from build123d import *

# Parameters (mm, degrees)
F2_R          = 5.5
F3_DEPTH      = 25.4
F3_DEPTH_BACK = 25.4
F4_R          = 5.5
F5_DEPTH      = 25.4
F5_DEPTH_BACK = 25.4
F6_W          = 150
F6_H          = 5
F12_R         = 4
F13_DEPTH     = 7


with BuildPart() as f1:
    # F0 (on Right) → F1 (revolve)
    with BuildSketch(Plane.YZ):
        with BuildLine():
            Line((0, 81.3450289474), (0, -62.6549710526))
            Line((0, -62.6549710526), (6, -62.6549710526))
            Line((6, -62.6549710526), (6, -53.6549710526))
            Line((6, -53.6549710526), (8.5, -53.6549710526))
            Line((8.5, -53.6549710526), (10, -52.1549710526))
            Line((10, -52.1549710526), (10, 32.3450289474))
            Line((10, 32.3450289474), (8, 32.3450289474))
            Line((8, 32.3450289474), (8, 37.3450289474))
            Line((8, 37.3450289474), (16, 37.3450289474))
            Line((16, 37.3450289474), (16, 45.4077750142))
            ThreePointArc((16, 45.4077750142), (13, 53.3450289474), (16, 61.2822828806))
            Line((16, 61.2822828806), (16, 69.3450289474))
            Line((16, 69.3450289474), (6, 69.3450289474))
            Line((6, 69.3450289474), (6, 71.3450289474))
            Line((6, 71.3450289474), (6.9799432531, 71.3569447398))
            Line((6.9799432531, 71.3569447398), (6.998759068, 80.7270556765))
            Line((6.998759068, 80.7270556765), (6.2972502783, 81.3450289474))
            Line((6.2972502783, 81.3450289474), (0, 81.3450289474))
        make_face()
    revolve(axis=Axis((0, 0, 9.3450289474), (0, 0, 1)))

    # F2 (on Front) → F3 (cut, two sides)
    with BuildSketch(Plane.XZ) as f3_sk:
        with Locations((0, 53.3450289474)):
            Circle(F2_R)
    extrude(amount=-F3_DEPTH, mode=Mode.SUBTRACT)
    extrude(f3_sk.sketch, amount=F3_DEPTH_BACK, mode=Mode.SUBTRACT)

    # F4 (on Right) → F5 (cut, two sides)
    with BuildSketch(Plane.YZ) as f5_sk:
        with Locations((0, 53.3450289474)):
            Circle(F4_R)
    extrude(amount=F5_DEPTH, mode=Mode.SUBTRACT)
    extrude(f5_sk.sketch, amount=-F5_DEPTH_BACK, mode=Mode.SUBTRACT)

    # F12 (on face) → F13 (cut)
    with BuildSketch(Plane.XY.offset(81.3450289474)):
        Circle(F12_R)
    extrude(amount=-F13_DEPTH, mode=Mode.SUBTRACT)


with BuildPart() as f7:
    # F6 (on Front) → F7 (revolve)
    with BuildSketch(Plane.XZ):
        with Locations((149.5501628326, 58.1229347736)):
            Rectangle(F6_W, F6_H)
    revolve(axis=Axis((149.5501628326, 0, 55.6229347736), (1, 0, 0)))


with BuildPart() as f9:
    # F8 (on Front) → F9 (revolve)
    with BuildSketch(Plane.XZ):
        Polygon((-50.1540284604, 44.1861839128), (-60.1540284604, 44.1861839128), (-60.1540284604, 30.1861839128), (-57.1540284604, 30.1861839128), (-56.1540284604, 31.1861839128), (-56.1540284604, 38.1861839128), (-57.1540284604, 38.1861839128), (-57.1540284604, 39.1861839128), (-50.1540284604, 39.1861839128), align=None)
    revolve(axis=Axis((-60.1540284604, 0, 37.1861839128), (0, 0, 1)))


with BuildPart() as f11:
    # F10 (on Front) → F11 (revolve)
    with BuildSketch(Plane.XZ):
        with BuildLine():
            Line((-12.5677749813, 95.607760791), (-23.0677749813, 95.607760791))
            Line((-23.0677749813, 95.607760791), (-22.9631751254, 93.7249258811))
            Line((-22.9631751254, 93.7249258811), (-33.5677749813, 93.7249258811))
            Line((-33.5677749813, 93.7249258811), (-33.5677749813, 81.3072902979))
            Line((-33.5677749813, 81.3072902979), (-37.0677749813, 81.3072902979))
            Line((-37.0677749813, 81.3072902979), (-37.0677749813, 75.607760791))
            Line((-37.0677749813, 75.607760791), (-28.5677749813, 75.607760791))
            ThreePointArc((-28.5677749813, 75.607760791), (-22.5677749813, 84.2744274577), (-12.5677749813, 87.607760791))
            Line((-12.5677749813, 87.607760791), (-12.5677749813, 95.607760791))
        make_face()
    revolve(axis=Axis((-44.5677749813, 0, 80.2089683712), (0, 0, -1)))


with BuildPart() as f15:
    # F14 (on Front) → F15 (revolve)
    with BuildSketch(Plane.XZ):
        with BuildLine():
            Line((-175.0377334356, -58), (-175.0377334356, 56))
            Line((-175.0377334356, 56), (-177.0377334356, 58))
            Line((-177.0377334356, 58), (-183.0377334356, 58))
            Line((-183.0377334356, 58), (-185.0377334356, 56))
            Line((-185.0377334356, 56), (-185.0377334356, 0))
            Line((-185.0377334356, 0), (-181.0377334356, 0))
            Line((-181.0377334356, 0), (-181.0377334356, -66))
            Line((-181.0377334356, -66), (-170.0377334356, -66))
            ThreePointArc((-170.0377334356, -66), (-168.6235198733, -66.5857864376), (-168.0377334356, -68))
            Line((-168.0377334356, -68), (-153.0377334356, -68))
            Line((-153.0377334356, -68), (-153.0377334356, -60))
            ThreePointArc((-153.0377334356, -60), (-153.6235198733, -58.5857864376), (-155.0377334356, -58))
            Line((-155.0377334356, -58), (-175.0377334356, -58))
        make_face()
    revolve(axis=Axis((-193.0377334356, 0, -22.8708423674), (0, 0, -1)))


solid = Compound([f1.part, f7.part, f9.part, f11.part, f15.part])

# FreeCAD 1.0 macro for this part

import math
import FreeCAD as App
import Part
import Sketcher

V = App.Vector
Q = App.Units.Quantity


def add_polygon(sketch, points):
    """Adds a closed chain of lines whose ends are joined by coincident constraints."""
    first, n = sketch.GeometryCount, len(points)
    for a, b in zip(points, points[1:] + points[:1]):
        sketch.addGeometry(Part.LineSegment(App.Vector(*a, 0), App.Vector(*b, 0)), False)
    for i in range(n):
        sketch.addConstraint(Sketcher.Constraint("Coincident", first + i, 2, first + (i + 1) % n, 1))

doc = App.newDocument("Part")
body = doc.addObject("PartDesign::Body", "Body")

# Sketch on YZ plane
sketch1 = body.newObject("Sketcher::SketchObject", "Sketch")
sketch1.AttachmentSupport = (doc.getObject("YZ_Plane"), [""])
sketch1.MapMode = "FlatFace"
sketch1.addGeometry([
    Part.LineSegment(V(0, 81.345029, 0), V(0, -62.654971, 0)),  # 0
    Part.LineSegment(V(0, -62.654971, 0), V(6, -62.654971, 0)),  # 1
    Part.LineSegment(V(6, -62.654971, 0), V(6, -53.654971, 0)),  # 2
    Part.LineSegment(V(6, -53.654971, 0), V(8.5, -53.654971, 0)),  # 3
    Part.LineSegment(V(8.5, -53.654971, 0), V(10, -52.154971, 0)),  # 4
    Part.LineSegment(V(10, -52.154971, 0), V(10, 32.345029, 0)),  # 5
    Part.LineSegment(V(10, 32.345029, 0), V(8, 32.345029, 0)),  # 6
    Part.LineSegment(V(8, 32.345029, 0), V(8, 37.345029, 0)),  # 7
    Part.LineSegment(V(8, 37.345029, 0), V(16, 37.345029, 0)),  # 8
    Part.LineSegment(V(16, 37.345029, 0), V(16, 45.407775, 0)),  # 9
    Part.ArcOfCircle(Part.Circle(V(25, 53.345029, 0), V(0, 0, 1), 12), math.radians(138.590378), math.radians(221.409622)),  # 10
    Part.LineSegment(V(16, 61.282283, 0), V(16, 69.345029, 0)),  # 11
    Part.LineSegment(V(16, 69.345029, 0), V(6, 69.345029, 0)),  # 12
    Part.LineSegment(V(6, 69.345029, 0), V(6, 71.345029, 0)),  # 13
    Part.LineSegment(V(6, 71.345029, 0), V(6.979943, 71.356945, 0)),  # 14
    Part.LineSegment(V(6.979943, 71.356945, 0), V(6.998759, 80.727056, 0)),  # 15
    Part.LineSegment(V(6.998759, 80.727056, 0), V(6.29725, 81.345029, 0)),  # 16
    Part.LineSegment(V(6.29725, 81.345029, 0), V(0, 81.345029, 0)),  # 17
], False)
sketch1.addConstraint([
    Sketcher.Constraint("Coincident", 0, 2, 1, 1),
    Sketcher.Constraint("Coincident", 1, 2, 2, 1),
    Sketcher.Constraint("Coincident", 2, 2, 3, 1),
    Sketcher.Constraint("Coincident", 3, 2, 4, 1),
    Sketcher.Constraint("Coincident", 4, 2, 5, 1),
    Sketcher.Constraint("Coincident", 5, 2, 6, 1),
    Sketcher.Constraint("Coincident", 6, 2, 7, 1),
    Sketcher.Constraint("Coincident", 7, 2, 8, 1),
    Sketcher.Constraint("Coincident", 8, 2, 9, 1),
    Sketcher.Constraint("Coincident", 9, 2, 10, 2),
    Sketcher.Constraint("Coincident", 10, 1, 11, 1),
    Sketcher.Constraint("Coincident", 11, 2, 12, 1),
    Sketcher.Constraint("Coincident", 12, 2, 13, 1),
    Sketcher.Constraint("Coincident", 13, 2, 14, 1),
    Sketcher.Constraint("Coincident", 14, 2, 15, 1),
    Sketcher.Constraint("Coincident", 15, 2, 16, 1),
    Sketcher.Constraint("Coincident", 16, 2, 17, 1),
    Sketcher.Constraint("Coincident", 17, 2, 0, 1),
    Sketcher.Constraint("Vertical", 0),
    Sketcher.Constraint("Horizontal", 1),
    Sketcher.Constraint("Vertical", 2),
    Sketcher.Constraint("Horizontal", 3),
    Sketcher.Constraint("Vertical", 5),
    Sketcher.Constraint("Horizontal", 6),
    Sketcher.Constraint("Vertical", 7),
    Sketcher.Constraint("Horizontal", 8),
    Sketcher.Constraint("Vertical", 9),
    Sketcher.Constraint("Vertical", 11),
    Sketcher.Constraint("Horizontal", 12),
    Sketcher.Constraint("Vertical", 13),
    Sketcher.Constraint("Horizontal", 17),
    Sketcher.Constraint("PointOnObject", 0, 2, -2),
    Sketcher.Constraint("Vertical", 9, 2, 10, 1),
    Sketcher.Constraint("Vertical", 2, 2, 12, 2),
    Sketcher.Constraint("Equal", 9, 11),
    Sketcher.Constraint("Equal", 6, 13),
    Sketcher.Constraint("Radius", 10, 12.0),
    Sketcher.Constraint("DistanceX", 1, 1, 1, 2, 6.0),
    Sketcher.Constraint("DistanceX", 6, 2, 6, 1, 2.0),
    Sketcher.Constraint("DistanceX", 8, 1, 8, 2, 8.0),
    Sketcher.Constraint("DistanceX", 12, 2, 12, 1, 10.0),
    Sketcher.Constraint("DistanceY", 0, 2, 0, 1, 144.0),
    Sketcher.Constraint("DistanceY", 2, 1, 2, 2, 9.0),
    Sketcher.Constraint("DistanceY", 7, 1, 7, 2, 5.0),
    Sketcher.Constraint("Angle", 4, Q("45 deg")),
    Sketcher.Constraint("DistanceX", 3, 1, 3, 2, 2.5),
    Sketcher.Constraint("DistanceY", 5, 1, 5, 2, 84.5),
    Sketcher.Constraint("DistanceX", -1, 1, 10, 3, 25.0),
    Sketcher.Constraint("DistanceY", 0, 2, 10, 3, 116.0),
    Sketcher.Constraint("DistanceX", 17, 2, 17, 1, 6.29725),
    Sketcher.Constraint("Distance", 15, 9.37013),
    Sketcher.Constraint("DistanceY", -1, 1, 10, 3, 53.345029),
    Sketcher.Constraint("DistanceX", -1, 1, 15, 2, 6.998759),
    Sketcher.Constraint("DistanceY", 10, 1, 14, 2, 10.074662),
    Sketcher.Constraint("Distance", 14, 0.980016),
])
revolution = body.newObject("PartDesign::Revolution", "Revolution")
revolution.Profile = sketch1
revolution.ReferenceAxis = (sketch1, ["V_Axis"])
revolution.Angle = 360

# Sketch on XZ plane
sketch2 = body.newObject("Sketcher::SketchObject", "Sketch001")
sketch2.AttachmentSupport = (doc.getObject("XZ_Plane"), [""])
sketch2.MapMode = "FlatFace"
sketch2.addGeometry(Part.Circle(V(0, 53.345029, 0), V(0, 0, 1), 5.5), False)
sketch2.addConstraint([
    Sketcher.Constraint("PointOnObject", 0, 3, -2),
    Sketcher.Constraint("Diameter", 0, 11.0),
    Sketcher.Constraint("DistanceY", -1, 1, 0, 3, 53.345029),
])
pocket1 = body.newObject("PartDesign::Pocket", "Pocket")
pocket1.Profile = sketch2
pocket1.Type = "ThroughAll"
pocket1.Midplane = True

# Sketch on YZ plane
sketch3 = body.newObject("Sketcher::SketchObject", "Sketch002")
sketch3.AttachmentSupport = (doc.getObject("YZ_Plane"), [""])
sketch3.MapMode = "FlatFace"
sketch3.addGeometry(Part.Circle(V(0, 53.345029, 0), V(0, 0, 1), 5.5), False)
sketch3.addConstraint([
    Sketcher.Constraint("PointOnObject", 0, 3, -2),
    Sketcher.Constraint("Diameter", 0, 11.0),
    Sketcher.Constraint("DistanceY", -1, 1, 0, 3, 53.345029),
])
pocket2 = body.newObject("PartDesign::Pocket", "Pocket001")
pocket2.Profile = sketch3
pocket2.Type = "ThroughAll"
pocket2.Midplane = True

# Sketch on XY plane
sketch4 = body.newObject("Sketcher::SketchObject", "Sketch003")
sketch4.AttachmentSupport = (doc.getObject("XY_Plane"), [""])
sketch4.MapMode = "FlatFace"
sketch4.AttachmentOffset = App.Placement(V(0, 0, 81.345029), App.Rotation())
sketch4.addGeometry(Part.Circle(V(0, 0, 0), V(0, 0, 1), 4), False)
sketch4.addConstraint([
    Sketcher.Constraint("Coincident", 0, 3, -1, 1),
    Sketcher.Constraint("Diameter", 0, 8.0),
])
pocket3 = body.newObject("PartDesign::Pocket", "Pocket002")
pocket3.Profile = sketch4
pocket3.Length = 7
body2 = doc.addObject("PartDesign::Body", "Body001")

# Sketch on XZ plane
sketch5 = body2.newObject("Sketcher::SketchObject", "Sketch004")
sketch5.AttachmentSupport = (doc.getObject("XZ_Plane001"), [""])
sketch5.MapMode = "FlatFace"
add_polygon(sketch5, [(74.550163, 60.622935), (74.550163, 55.622935), (224.550163, 55.622935), (224.550163, 60.622935)])  # lines 0-3
sketch5.addGeometry(Part.LineSegment(V(74.550163, 55.622935, 0), V(224.550163, 55.622935, 0)), True)  # axis
sketch5.addConstraint([
    Sketcher.Constraint("Vertical", 0),
    Sketcher.Constraint("Horizontal", 1),
    Sketcher.Constraint("Vertical", 2),
    Sketcher.Constraint("Horizontal", 3),
    Sketcher.Constraint("Horizontal", 4),
    Sketcher.Constraint("Coincident", 4, 1, 0, 2),
    Sketcher.Constraint("Vertical", 2, 2, 4, 2),
    Sketcher.Constraint("DistanceX", 1, 1, 1, 2, 150.0),
    Sketcher.Constraint("DistanceY", 0, 2, 0, 1, 5.0),
    Sketcher.Constraint("DistanceX", -1, 1, 0, 2, 74.550163),
    Sketcher.Constraint("DistanceY", -1, 1, 0, 2, 55.622935),
])
revolution2 = body2.newObject("PartDesign::Revolution", "Revolution001")
revolution2.Profile = sketch5
revolution2.ReferenceAxis = (sketch5, ["Axis0"])
revolution2.Angle = 360
body3 = doc.addObject("PartDesign::Body", "Body002")

# Sketch on XZ plane
sketch6 = body3.newObject("Sketcher::SketchObject", "Sketch005")
sketch6.AttachmentSupport = (doc.getObject("XZ_Plane002"), [""])
sketch6.MapMode = "FlatFace"
add_polygon(sketch6, [(-50.154028, 44.186184), (-60.154028, 44.186184), (-60.154028, 30.186184), (-57.154028, 30.186184), (-56.154028, 31.186184), (-56.154028, 38.186184), (-57.154028, 38.186184), (-57.154028, 39.186184), (-50.154028, 39.186184)])  # lines 0-8
sketch6.addGeometry(Part.LineSegment(V(-60.154028, 30.186184, 0), V(-60.154028, 44.186184, 0)), True)  # axis
sketch6.addConstraint([
    Sketcher.Constraint("Horizontal", 0),
    Sketcher.Constraint("Vertical", 1),
    Sketcher.Constraint("Horizontal", 2),
    Sketcher.Constraint("Vertical", 4),
    Sketcher.Constraint("Horizontal", 5),
    Sketcher.Constraint("Vertical", 6),
    Sketcher.Constraint("Horizontal", 7),
    Sketcher.Constraint("Vertical", 8),
    Sketcher.Constraint("Vertical", 9),
    Sketcher.Constraint("Coincident", 9, 1, 1, 2),
    Sketcher.Constraint("Horizontal", 8, 2, 9, 2),
    Sketcher.Constraint("Vertical", 2, 2, 5, 2),
    Sketcher.Constraint("Equal", 7, 4),
    Sketcher.Constraint("Equal", 5, 6),
    Sketcher.Constraint("DistanceX", 0, 2, 0, 1, 10.0),
    Sketcher.Constraint("DistanceX", 2, 1, 2, 2, 3.0),
    Sketcher.Constraint("DistanceX", 5, 2, 5, 1, 1.0),
    Sketcher.Constraint("DistanceY", 1, 2, 1, 1, 14.0),
    Sketcher.Constraint("DistanceY", 8, 1, 8, 2, 5.0),
    Sketcher.Constraint("DistanceX", 0, 2, -1, 1, 60.154028),
    Sketcher.Constraint("DistanceY", -1, 1, 0, 2, 44.186184),
])
revolution3 = body3.newObject("PartDesign::Revolution", "Revolution002")
revolution3.Profile = sketch6
revolution3.ReferenceAxis = (sketch6, ["Axis0"])
revolution3.Angle = 360
body4 = doc.addObject("PartDesign::Body", "Body003")

# Sketch on XZ plane
sketch7 = body4.newObject("Sketcher::SketchObject", "Sketch006")
sketch7.AttachmentSupport = (doc.getObject("XZ_Plane003"), [""])
sketch7.MapMode = "FlatFace"
sketch7.addGeometry([
    Part.LineSegment(V(-12.567775, 95.607761, 0), V(-23.067775, 95.607761, 0)),  # 0
    Part.LineSegment(V(-23.067775, 95.607761, 0), V(-22.963175, 93.724926, 0)),  # 1
    Part.LineSegment(V(-22.963175, 93.724926, 0), V(-33.567775, 93.724926, 0)),  # 2
    Part.LineSegment(V(-33.567775, 93.724926, 0), V(-33.567775, 81.30729, 0)),  # 3
    Part.LineSegment(V(-33.567775, 81.30729, 0), V(-37.067775, 81.30729, 0)),  # 4
    Part.LineSegment(V(-37.067775, 81.30729, 0), V(-37.067775, 75.607761, 0)),  # 5
    Part.LineSegment(V(-37.067775, 75.607761, 0), V(-28.567775, 75.607761, 0)),  # 6
    Part.ArcOfCircle(Part.Circle(V(-12.567775, 70.941094, 0), V(0, 0, 1), 16.666667), math.radians(90), math.radians(163.739795)),  # 7
    Part.LineSegment(V(-12.567775, 87.607761, 0), V(-12.567775, 95.607761, 0)),  # 8
], False)
sketch7.addGeometry(Part.LineSegment(V(-44.567775, 95.607761, 0), V(-44.567775, 70.941094, 0)), True)  # axis
sketch7.addConstraint([
    Sketcher.Constraint("Coincident", 0, 2, 1, 1),
    Sketcher.Constraint("Coincident", 1, 2, 2, 1),
    Sketcher.Constraint("Coincident", 2, 2, 3, 1),
    Sketcher.Constraint("Coincident", 3, 2, 4, 1),
    Sketcher.Constraint("Coincident", 4, 2, 5, 1),
    Sketcher.Constraint("Coincident", 5, 2, 6, 1),
    Sketcher.Constraint("Coincident", 6, 2, 7, 2),
    Sketcher.Constraint("Coincident", 7, 1, 8, 1),
    Sketcher.Constraint("Coincident", 8, 2, 0, 1),
    Sketcher.Constraint("Horizontal", 0),
    Sketcher.Constraint("Horizontal", 2),
    Sketcher.Constraint("Vertical", 3),
    Sketcher.Constraint("Horizontal", 4),
    Sketcher.Constraint("Vertical", 5),
    Sketcher.Constraint("Horizontal", 6),
    Sketcher.Constraint("Vertical", 8),
    Sketcher.Constraint("Vertical", 9),
    Sketcher.Constraint("Horizontal", 8, 2, 9, 1),
    Sketcher.Constraint("Horizontal", 7, 3, 9, 2),
    Sketcher.Constraint("DistanceY", 8, 1, 8, 2, 8.0),
    Sketcher.Constraint("DistanceX", 0, 2, 0, 1, 10.5),
    Sketcher.Constraint("DistanceX", 4, 2, 4, 1, 3.5),
    Sketcher.Constraint("DistanceX", 6, 1, 6, 2, 8.5),
    Sketcher.Constraint("DistanceX", 2, 2, 7, 3, 21.0),
    Sketcher.Constraint("DistanceX", 4, 2, 0, 2, 14.0),
    Sketcher.Constraint("DistanceY", 5, 2, 0, 2, 20.0),
    Sketcher.Constraint("DistanceX", 9, 1, 2, 2, 11.0),
    Sketcher.Constraint("DistanceX", 2, 2, 2, 1, 10.6046),
    Sketcher.Constraint("DistanceY", 5, 2, 5, 1, 5.69953),
    Sketcher.Constraint("Distance", 1, 1.885738),
    Sketcher.Constraint("DistanceY", -1, 1, 0, 2, 95.607761),
    Sketcher.Constraint("DistanceX", 7, 3, -1, 1, 12.567775),
])
revolution4 = body4.newObject("PartDesign::Revolution", "Revolution003")
revolution4.Profile = sketch7
revolution4.ReferenceAxis = (sketch7, ["Axis0"])
revolution4.Angle = 360
body5 = doc.addObject("PartDesign::Body", "Body004")

# Sketch on XZ plane
sketch8 = body5.newObject("Sketcher::SketchObject", "Sketch007")
sketch8.AttachmentSupport = (doc.getObject("XZ_Plane004"), [""])
sketch8.MapMode = "FlatFace"
sketch8.addGeometry([
    Part.LineSegment(V(-175.037733, -58, 0), V(-175.037733, 56, 0)),  # 0
    Part.LineSegment(V(-175.037733, 56, 0), V(-177.037733, 58, 0)),  # 1
    Part.LineSegment(V(-177.037733, 58, 0), V(-183.037733, 58, 0)),  # 2
    Part.LineSegment(V(-183.037733, 58, 0), V(-185.037733, 56, 0)),  # 3
    Part.LineSegment(V(-185.037733, 56, 0), V(-185.037733, 0, 0)),  # 4
    Part.LineSegment(V(-185.037733, 0, 0), V(-181.037733, 0, 0)),  # 5
    Part.LineSegment(V(-181.037733, 0, 0), V(-181.037733, -66, 0)),  # 6
    Part.LineSegment(V(-181.037733, -66, 0), V(-170.037733, -66, 0)),  # 7
    Part.ArcOfCircle(Part.Circle(V(-170.037733, -68, 0), V(0, 0, 1), 2), math.radians(0), math.radians(90)),  # 8
    Part.LineSegment(V(-168.037733, -68, 0), V(-153.037733, -68, 0)),  # 9
    Part.LineSegment(V(-153.037733, -68, 0), V(-153.037733, -60, 0)),  # 10
    Part.ArcOfCircle(Part.Circle(V(-155.037733, -60, 0), V(0, 0, 1), 2), math.radians(0), math.radians(90)),  # 11
    Part.LineSegment(V(-155.037733, -58, 0), V(-175.037733, -58, 0)),  # 12
], False)
sketch8.addGeometry(Part.LineSegment(V(-193.037733, 58, 0), V(-193.037733, -68, 0)), True)  # axis
sketch8.addConstraint([
    Sketcher.Constraint("Coincident", 0, 2, 1, 1),
    Sketcher.Constraint("Coincident", 1, 2, 2, 1),
    Sketcher.Constraint("Coincident", 2, 2, 3, 1),
    Sketcher.Constraint("Coincident", 3, 2, 4, 1),
    Sketcher.Constraint("Coincident", 4, 2, 5, 1),
    Sketcher.Constraint("Coincident", 5, 2, 6, 1),
    Sketcher.Constraint("Coincident", 6, 2, 7, 1),
    Sketcher.Constraint("Tangent", 7, 2, 8, 2),
    Sketcher.Constraint("Coincident", 8, 1, 9, 1),
    Sketcher.Constraint("Coincident", 9, 2, 10, 1),
    Sketcher.Constraint("Tangent", 10, 2, 11, 1),
    Sketcher.Constraint("Tangent", 11, 2, 12, 1),
    Sketcher.Constraint("Coincident", 12, 2, 0, 1),
    Sketcher.Constraint("Vertical", 0),
    Sketcher.Constraint("Horizontal", 2),
    Sketcher.Constraint("Vertical", 4),
    Sketcher.Constraint("Horizontal", 5),
    Sketcher.Constraint("Vertical", 6),
    Sketcher.Constraint("Horizontal", 7),
    Sketcher.Constraint("Horizontal", 9),
    Sketcher.Constraint("Vertical", 10),
    Sketcher.Constraint("Horizontal", 12),
    Sketcher.Constraint("Vertical", 13),
    Sketcher.Constraint("Equal", 8, 11),
    Sketcher.Constraint("PointOnObject", 4, 2, -1),
    Sketcher.Constraint("Perpendicular", 1, 3),
    Sketcher.Constraint("Horizontal", 0, 2, 3, 2),
    Sketcher.Constraint("Horizontal", 2, 2, 13, 1),
    Sketcher.Constraint("Horizontal", 9, 2, 13, 2),
    Sketcher.Constraint("Equal", 1, 3),
    Sketcher.Constraint("Radius", 8, 2.0),
    Sketcher.Constraint("DistanceX", 2, 2, 2, 1, 6.0),
    Sketcher.Constraint("DistanceX", 5, 1, 5, 2, 4.0),
    Sketcher.Constraint("DistanceX", 7, 1, 7, 2, 11.0),
    Sketcher.Constraint("DistanceX", 9, 1, 9, 2, 15.0),
    Sketcher.Constraint("DistanceX", 12, 2, 12, 1, 20.0),
    Sketcher.Constraint("DistanceY", 0, 1, 0, 2, 114.0),
    Sketcher.Constraint("DistanceY", 4, 2, 4, 1, 56.0),
    Sketcher.Constraint("DistanceY", 6, 2, 6, 1, 66.0),
    Sketcher.Constraint("DistanceY", 10, 1, 10, 2, 8.0),
    Sketcher.Constraint("DistanceX", 13, 1, 3, 2, 8.0),
    Sketcher.Constraint("DistanceX", 8, 3, -1, 1, 170.037733),
])
revolution5 = body5.newObject("PartDesign::Revolution", "Revolution004")
revolution5.Profile = sketch8
revolution5.ReferenceAxis = (sketch8, ["Axis0"])
revolution5.Angle = 360

doc.recompute()
